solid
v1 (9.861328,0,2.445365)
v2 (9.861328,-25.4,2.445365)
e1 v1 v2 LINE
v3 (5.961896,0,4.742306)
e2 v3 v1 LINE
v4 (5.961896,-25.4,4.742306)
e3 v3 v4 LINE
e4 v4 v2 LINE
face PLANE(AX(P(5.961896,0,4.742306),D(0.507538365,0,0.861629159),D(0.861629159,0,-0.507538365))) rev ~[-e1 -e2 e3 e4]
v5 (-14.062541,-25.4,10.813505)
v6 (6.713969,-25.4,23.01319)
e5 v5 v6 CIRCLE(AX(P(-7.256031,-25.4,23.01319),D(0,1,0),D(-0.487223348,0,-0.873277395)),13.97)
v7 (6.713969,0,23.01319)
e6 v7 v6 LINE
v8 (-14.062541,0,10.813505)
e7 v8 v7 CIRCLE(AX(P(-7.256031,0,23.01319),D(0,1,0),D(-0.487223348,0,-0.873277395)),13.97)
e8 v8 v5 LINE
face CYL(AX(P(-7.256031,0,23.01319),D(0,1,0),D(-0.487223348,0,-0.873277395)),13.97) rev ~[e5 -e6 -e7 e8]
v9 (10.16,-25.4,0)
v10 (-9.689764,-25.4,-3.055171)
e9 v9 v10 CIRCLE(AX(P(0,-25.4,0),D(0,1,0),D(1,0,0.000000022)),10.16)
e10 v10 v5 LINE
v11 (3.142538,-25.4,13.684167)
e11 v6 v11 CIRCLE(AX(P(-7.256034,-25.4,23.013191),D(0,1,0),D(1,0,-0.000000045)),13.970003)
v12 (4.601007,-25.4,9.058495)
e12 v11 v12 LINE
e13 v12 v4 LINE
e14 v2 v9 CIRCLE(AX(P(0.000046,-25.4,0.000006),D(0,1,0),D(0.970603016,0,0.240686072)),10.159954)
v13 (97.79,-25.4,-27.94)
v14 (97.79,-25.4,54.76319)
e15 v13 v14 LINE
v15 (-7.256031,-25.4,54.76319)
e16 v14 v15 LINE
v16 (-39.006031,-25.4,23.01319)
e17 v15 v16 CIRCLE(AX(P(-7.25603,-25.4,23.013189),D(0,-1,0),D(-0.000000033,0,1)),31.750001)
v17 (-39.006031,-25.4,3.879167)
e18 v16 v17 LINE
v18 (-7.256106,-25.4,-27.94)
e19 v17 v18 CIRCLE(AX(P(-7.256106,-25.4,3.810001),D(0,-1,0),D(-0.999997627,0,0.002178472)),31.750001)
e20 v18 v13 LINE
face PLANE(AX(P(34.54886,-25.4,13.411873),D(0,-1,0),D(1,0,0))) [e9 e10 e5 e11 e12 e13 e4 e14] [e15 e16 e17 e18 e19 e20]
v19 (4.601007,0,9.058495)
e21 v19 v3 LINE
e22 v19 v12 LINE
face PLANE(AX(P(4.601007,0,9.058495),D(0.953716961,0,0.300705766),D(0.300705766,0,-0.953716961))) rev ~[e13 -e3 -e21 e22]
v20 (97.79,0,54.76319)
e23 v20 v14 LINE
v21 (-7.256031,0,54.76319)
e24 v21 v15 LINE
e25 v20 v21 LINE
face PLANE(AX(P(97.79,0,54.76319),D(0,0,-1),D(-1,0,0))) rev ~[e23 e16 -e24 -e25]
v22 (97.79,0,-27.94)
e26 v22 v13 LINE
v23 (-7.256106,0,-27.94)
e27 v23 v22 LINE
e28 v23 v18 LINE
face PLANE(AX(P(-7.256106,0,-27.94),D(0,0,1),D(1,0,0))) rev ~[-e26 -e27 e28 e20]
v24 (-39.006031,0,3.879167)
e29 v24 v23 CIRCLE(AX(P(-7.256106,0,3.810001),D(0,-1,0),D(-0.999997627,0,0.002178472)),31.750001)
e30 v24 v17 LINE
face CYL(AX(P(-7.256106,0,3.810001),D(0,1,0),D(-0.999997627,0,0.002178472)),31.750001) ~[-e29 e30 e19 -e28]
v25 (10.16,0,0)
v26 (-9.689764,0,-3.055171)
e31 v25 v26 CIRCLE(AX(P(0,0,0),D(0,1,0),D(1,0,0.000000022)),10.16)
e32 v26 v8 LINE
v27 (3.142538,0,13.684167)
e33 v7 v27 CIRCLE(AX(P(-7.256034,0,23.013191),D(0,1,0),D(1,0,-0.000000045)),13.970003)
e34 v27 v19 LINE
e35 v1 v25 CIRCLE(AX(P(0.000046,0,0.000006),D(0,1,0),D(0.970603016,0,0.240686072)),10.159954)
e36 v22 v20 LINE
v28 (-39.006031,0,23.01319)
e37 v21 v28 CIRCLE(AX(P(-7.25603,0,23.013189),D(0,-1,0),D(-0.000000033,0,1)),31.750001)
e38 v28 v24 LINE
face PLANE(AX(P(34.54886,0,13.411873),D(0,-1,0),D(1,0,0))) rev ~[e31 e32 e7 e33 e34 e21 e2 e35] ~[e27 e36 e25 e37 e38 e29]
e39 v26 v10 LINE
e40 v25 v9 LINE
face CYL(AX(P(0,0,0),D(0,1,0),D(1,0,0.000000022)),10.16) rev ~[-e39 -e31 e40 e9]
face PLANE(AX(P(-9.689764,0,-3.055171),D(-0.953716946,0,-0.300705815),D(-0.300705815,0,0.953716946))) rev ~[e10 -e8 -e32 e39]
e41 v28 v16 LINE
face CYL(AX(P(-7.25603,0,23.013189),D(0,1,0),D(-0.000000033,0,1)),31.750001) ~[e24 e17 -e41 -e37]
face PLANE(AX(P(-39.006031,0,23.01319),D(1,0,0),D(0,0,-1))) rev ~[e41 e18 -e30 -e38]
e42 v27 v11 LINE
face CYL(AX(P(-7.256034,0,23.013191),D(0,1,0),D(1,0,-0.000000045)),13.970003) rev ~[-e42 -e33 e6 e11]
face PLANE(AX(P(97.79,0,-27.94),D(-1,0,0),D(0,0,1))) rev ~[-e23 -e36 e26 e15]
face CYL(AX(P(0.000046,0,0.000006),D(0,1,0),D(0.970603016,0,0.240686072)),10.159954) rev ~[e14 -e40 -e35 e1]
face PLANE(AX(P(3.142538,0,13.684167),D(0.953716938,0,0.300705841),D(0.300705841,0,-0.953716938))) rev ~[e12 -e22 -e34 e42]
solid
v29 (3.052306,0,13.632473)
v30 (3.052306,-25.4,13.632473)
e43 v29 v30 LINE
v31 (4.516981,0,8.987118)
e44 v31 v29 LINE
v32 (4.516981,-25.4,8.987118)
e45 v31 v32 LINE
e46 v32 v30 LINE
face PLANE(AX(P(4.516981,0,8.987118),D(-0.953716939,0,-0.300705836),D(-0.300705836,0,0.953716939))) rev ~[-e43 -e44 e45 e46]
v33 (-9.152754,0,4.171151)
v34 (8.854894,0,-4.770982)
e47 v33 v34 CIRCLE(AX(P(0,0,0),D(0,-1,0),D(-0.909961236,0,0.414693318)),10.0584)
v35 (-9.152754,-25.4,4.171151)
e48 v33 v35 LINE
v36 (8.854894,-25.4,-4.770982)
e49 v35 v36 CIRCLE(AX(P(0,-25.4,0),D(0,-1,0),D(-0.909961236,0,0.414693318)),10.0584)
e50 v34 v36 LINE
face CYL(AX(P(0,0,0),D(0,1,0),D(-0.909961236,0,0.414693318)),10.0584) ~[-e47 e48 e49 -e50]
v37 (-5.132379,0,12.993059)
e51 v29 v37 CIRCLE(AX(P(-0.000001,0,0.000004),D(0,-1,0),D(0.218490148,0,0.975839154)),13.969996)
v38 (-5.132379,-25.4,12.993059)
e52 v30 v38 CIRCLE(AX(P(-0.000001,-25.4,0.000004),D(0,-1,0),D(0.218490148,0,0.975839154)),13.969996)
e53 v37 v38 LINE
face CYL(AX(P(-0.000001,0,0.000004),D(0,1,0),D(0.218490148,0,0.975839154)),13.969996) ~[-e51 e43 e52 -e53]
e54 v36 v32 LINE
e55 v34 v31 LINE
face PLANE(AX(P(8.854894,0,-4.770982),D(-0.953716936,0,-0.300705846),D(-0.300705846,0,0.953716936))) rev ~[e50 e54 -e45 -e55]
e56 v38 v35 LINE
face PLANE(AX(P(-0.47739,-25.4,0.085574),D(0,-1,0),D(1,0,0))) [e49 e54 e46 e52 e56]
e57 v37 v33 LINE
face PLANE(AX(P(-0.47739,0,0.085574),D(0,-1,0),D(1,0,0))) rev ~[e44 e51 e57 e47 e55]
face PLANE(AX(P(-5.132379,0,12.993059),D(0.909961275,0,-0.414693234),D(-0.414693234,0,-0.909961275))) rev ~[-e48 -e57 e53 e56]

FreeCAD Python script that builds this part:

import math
import FreeCAD as App
import Part
import Sketcher
from FreeCAD import Vector
Q = App.Units.Quantity

doc = App.newDocument("Part")
body = doc.addObject("PartDesign::Body", "Body")

# Sketch on XZ plane
sketch1 = body.newObject("Sketcher::SketchObject", "Sketch")
sketch1.AttachmentSupport = (doc.getObject("XZ_Plane"), [""])
sketch1.MapMode = "FlatFace"
sketch1.addGeometry([
    Part.ArcOfCircle(Part.Circle(Vector(-7.25603, 23.013189, 0), Vector(0, 0, 1), 31.750001), math.radians(90.000002), math.radians(179.999998)),  # 0
    Part.LineSegment(Vector(-39.006031, 23.01319, 0), Vector(-39.006031, 3.879167, 0)),  # 1
    Part.ArcOfCircle(Part.Circle(Vector(-7.256106, 3.810001, 0), Vector(0, 0, 1), 31.750001), math.radians(179.875183), math.radians(270)),  # 2
    Part.LineSegment(Vector(-7.256106, -27.94, 0), Vector(97.79, -27.94, 0)),  # 3
    Part.LineSegment(Vector(97.79, -27.94, 0), Vector(97.79, 54.76319, 0)),  # 4
    Part.LineSegment(Vector(97.79, 54.76319, 0), Vector(-7.256031, 54.76319, 0)),  # 5
    Part.LineSegment(Vector(3.142538, 13.684167, 0), Vector(4.601007, 9.058495, 0)),  # 6
    Part.LineSegment(Vector(4.601007, 9.058495, 0), Vector(5.961896, 4.742306, 0)),  # 7
    Part.LineSegment(Vector(5.961896, 4.742306, 0), Vector(9.861328, 2.445365, 0)),  # 8
    Part.ArcOfCircle(Part.Circle(Vector(0.000046, 0.000006, 0), Vector(0, 0, 1), 10.159954), math.radians(-0.000032), math.radians(13.927036)),  # 9
    Part.ArcOfCircle(Part.Circle(Vector(0, 0, 0), Vector(0, 0, 1), 10.16), math.radians(-162.500001), math.radians(0.000001)),  # 10
    Part.LineSegment(Vector(-9.689764, -3.055171, 0), Vector(-14.062541, 10.813505, 0)),  # 11
    Part.ArcOfCircle(Part.Circle(Vector(-7.256031, 23.01319, 0), Vector(0, 0, 1), 13.97), math.radians(0), math.radians(240.841757)),  # 12
    Part.ArcOfCircle(Part.Circle(Vector(-7.256034, 23.013191, 0), Vector(0, 0, 1), 13.970003), math.radians(-41.8967), math.radians(-0.000003)),  # 13
], False)
sketch1.addConstraint([
    Sketcher.Constraint("Coincident", 0, 2, 1, 1),
    Sketcher.Constraint("Coincident", 1, 2, 2, 1),
    Sketcher.Constraint("Coincident", 2, 2, 3, 1),
    Sketcher.Constraint("Coincident", 3, 2, 4, 1),
    Sketcher.Constraint("Coincident", 4, 2, 5, 1),
    Sketcher.Constraint("Coincident", 5, 2, 0, 1),
    Sketcher.Constraint("Coincident", 6, 2, 7, 1),
    Sketcher.Constraint("Coincident", 7, 2, 8, 1),
    Sketcher.Constraint("Coincident", 8, 2, 9, 2),
    Sketcher.Constraint("Coincident", 9, 1, 10, 2),
    Sketcher.Constraint("Coincident", 10, 1, 11, 1),
    Sketcher.Constraint("Coincident", 11, 2, 12, 2),
    Sketcher.Constraint("Coincident", 12, 1, 13, 2),
    Sketcher.Constraint("Coincident", 13, 1, 6, 1),
    Sketcher.Constraint("Vertical", 1),
    Sketcher.Constraint("Horizontal", 3),
    Sketcher.Constraint("Vertical", 4),
    Sketcher.Constraint("Horizontal", 5),
    Sketcher.Constraint("Coincident", 10, 3, -1, 1),
    Sketcher.Constraint("Coincident", 12, 3, 0, 3),
    Sketcher.Constraint("Coincident", 13, 3, 0, 3),
    Sketcher.Constraint("PointOnObject", 9, 1, -1),
    Sketcher.Constraint("Radius", 10, Q("0.4 in")),
    Sketcher.Constraint("Radius", 0, Q("1.25 in")),
    Sketcher.Constraint("Radius", 2, Q("1.25 in")),
    Sketcher.Constraint("Radius", 12, Q("0.55 in")),
    Sketcher.Constraint("DistanceY", 2, 2, -1, 1, Q("1.1 in")),
    Sketcher.Constraint("DistanceX", -1, 1, 3, 2, Q("3.85 in")),
    Sketcher.Constraint("DistanceX", 0, 2, 5, 2, Q("1.25 in")),
    Sketcher.Constraint("DistanceY", 0, 2, 5, 2, Q("1.25 in")),
    Sketcher.Constraint("Radius", 9, Q("10.159954 mm")),
    Sketcher.Constraint("DistanceX", 5, 2, 5, 1, Q("105.046031 mm")),
    Sketcher.Constraint("DistanceY", 4, 1, 4, 2, Q("82.70319 mm")),
    Sketcher.Constraint("DistanceY", 9, 3, 7, 2, Q("4.7423 mm")),
    Sketcher.Constraint("DistanceX", 2, 3, 7, 2, Q("13.218002 mm")),
    Sketcher.Constraint("Distance", 6, Q("4.850152 mm")),
    Sketcher.Constraint("Distance", 7, Q("4.52565 mm")),
    Sketcher.Constraint("Distance", 8, Q("4.52565 mm")),
    Sketcher.Constraint("Distance", 11, Q("14.541711 mm")),
    Sketcher.Constraint("DistanceX", 3, 1, 3, 2, Q("105.046106 mm")),
    Sketcher.Constraint("DistanceY", 1, 2, 1, 1, Q("19.134023 mm")),
    Sketcher.Constraint("DistanceY", 10, 1, -1, 1, Q("3.055171 mm")),
    Sketcher.Constraint("DistanceY", -1, 1, 12, 1, Q("23.01319 mm")),
    Sketcher.Constraint("DistanceX", 9, 3, 6, 2, Q("4.600961 mm")),
    Sketcher.Constraint("DistanceX", 13, 1, 6, 2, Q("1.458469 mm")),
])
pad1 = body.newObject("PartDesign::Pad", "Pad")
pad1.Profile = sketch1
pad1.Length = Q("1 in")
body2 = doc.addObject("PartDesign::Body", "Body001")

# Sketch on XZ plane
sketch2 = body2.newObject("Sketcher::SketchObject", "Sketch001")
sketch2.AttachmentSupport = (doc.getObject("XZ_Plane001"), [""])
sketch2.MapMode = "FlatFace"
sketch2.addGeometry([
    Part.LineSegment(Vector(8.9, -4.8, 0), Vector(4.5, 9, 0)),  # 0
    Part.LineSegment(Vector(4.5, 9, 0), Vector(3.1, 13.6, 0)),  # 1
    Part.ArcOfCircle(Part.Circle(Vector(0, 0, 0), Vector(0, 0, 1), 14), math.radians(77), math.radians(112)),  # 2
    Part.LineSegment(Vector(-5.1, 13, 0), Vector(-9.2, 4.2, 0)),  # 3
    Part.ArcOfCircle(Part.Circle(Vector(0, 0, 0), Vector(0, 0, 1), 10.1), math.radians(155), math.radians(332)),  # 4
], False)
sketch2.addConstraint([
    Sketcher.Constraint("Coincident", 0, 2, 1, 1),
    Sketcher.Constraint("Coincident", 1, 2, 2, 1),
    Sketcher.Constraint("Coincident", 2, 2, 3, 1),
    Sketcher.Constraint("Tangent", 3, 2, 4, 1),
    Sketcher.Constraint("Coincident", 4, 2, 0, 1),
    Sketcher.Constraint("Coincident", 2, 3, -1, 1),
    Sketcher.Constraint("Coincident", 4, 3, -1, 1),
    Sketcher.Constraint("Parallel", 0, 1),
    Sketcher.Constraint("Radius", 2, Q("0.5499999 in")),
    Sketcher.Constraint("Radius", 4, Q("0.396 in")),
    Sketcher.Constraint("Angle", 0, Q("107.500003 deg")),
    Sketcher.Constraint("Angle", 3, Q("-114.499999 deg")),
    Sketcher.Constraint("DistanceY", 4, 2, 0, 2, Q("13.7581 mm")),
    Sketcher.Constraint("Distance", 1, Q("4.87079 mm")),
])
pad2 = body2.newObject("PartDesign::Pad", "Pad001")
pad2.Profile = sketch2
pad2.Length = Q("1 in")

doc.recompute()
